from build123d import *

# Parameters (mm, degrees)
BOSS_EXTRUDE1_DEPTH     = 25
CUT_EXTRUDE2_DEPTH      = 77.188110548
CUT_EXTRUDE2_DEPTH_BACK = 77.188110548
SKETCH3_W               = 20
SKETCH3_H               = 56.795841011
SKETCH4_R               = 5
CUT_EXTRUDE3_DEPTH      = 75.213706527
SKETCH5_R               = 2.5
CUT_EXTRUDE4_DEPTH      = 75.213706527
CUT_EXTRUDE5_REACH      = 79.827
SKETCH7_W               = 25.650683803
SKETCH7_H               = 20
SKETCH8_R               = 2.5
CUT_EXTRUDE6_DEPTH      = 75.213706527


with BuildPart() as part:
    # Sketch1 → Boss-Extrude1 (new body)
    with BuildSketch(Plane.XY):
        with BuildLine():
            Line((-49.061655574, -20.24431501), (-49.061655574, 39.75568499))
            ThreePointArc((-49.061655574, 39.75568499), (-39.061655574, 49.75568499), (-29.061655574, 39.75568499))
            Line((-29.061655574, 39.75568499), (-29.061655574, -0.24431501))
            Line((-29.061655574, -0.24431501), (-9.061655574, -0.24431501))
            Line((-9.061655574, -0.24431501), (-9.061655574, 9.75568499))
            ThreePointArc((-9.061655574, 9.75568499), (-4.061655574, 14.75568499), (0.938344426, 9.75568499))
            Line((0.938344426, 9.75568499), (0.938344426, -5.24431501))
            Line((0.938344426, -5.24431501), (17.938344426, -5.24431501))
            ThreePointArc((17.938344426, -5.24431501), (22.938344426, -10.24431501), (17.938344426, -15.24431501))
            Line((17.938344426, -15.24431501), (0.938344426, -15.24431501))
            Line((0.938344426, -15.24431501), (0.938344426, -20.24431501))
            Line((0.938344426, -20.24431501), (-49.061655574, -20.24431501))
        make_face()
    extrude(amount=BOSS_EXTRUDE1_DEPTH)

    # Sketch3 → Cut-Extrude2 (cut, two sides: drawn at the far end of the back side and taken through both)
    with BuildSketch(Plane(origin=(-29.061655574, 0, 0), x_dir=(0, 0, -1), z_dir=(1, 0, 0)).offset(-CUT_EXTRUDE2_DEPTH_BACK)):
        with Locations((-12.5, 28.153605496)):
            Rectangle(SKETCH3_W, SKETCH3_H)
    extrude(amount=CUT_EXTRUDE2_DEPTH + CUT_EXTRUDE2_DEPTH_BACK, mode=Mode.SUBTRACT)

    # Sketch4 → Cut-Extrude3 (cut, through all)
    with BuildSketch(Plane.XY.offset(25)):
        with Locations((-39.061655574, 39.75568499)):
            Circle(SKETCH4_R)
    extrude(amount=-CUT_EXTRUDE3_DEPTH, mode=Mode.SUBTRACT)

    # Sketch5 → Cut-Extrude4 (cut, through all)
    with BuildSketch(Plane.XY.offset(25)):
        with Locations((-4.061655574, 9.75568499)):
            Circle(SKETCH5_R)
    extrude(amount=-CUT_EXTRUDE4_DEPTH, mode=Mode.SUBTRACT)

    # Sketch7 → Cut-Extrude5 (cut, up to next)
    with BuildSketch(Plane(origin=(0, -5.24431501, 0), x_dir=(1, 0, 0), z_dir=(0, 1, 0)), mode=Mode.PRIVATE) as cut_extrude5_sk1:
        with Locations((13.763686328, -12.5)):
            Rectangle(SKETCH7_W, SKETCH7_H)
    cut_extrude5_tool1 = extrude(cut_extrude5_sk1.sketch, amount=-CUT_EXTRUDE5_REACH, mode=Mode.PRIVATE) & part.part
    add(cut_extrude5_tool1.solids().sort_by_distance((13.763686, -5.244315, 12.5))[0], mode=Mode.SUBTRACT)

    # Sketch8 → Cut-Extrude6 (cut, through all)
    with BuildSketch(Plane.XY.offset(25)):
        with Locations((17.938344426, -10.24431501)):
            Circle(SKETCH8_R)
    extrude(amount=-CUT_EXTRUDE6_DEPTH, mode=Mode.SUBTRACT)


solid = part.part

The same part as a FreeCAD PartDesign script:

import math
import FreeCAD as App
import Part
import Sketcher

V = App.Vector
Q = App.Units.Quantity


def add_polygon(sketch, points):
    """Adds a closed chain of lines whose ends are joined by coincident constraints."""
    first, n = sketch.GeometryCount, len(points)
    for a, b in zip(points, points[1:] + points[:1]):
        sketch.addGeometry(Part.LineSegment(App.Vector(*a, 0), App.Vector(*b, 0)), False)
    for i in range(n):
        sketch.addConstraint(Sketcher.Constraint("Coincident", first + i, 2, first + (i + 1) % n, 1))

doc = App.newDocument("Part")
body = doc.addObject("PartDesign::Body", "Body")

# Sketch on XY plane
sketch1 = doc.addObject("Sketcher::SketchObject", "Sketch")
body.addObject(sketch1)
sketch1.AttachmentSupport = (doc.XY_Plane, [""])
sketch1.MapMode = "FlatFace"
sketch1.addGeometry(Part.LineSegment(V(-49, 40, 0), V(-49, -20, 0)), False)
sketch1.addGeometry(Part.LineSegment(V(-49, -20, 0), V(1, -20, 0)), False)
sketch1.addGeometry(Part.LineSegment(V(1, -20, 0), V(1, -15, 0)), False)
sketch1.addGeometry(Part.LineSegment(V(1, -15, 0), V(18, -15, 0)), False)
sketch1.addGeometry(Part.ArcOfCircle(Part.Circle(V(18, -10, 0), V(0, 0, 1), 5), math.radians(-90), math.radians(90)), False)
sketch1.addGeometry(Part.LineSegment(V(18, -5, 0), V(1, -5, 0)), False)
sketch1.addGeometry(Part.LineSegment(V(1, -5, 0), V(1, 10, 0)), False)
sketch1.addGeometry(Part.ArcOfCircle(Part.Circle(V(-4, 10, 0), V(0, 0, 1), 5), math.radians(0), math.radians(180)), False)
sketch1.addGeometry(Part.LineSegment(V(-9, 10, 0), V(-9, 0, 0)), False)
sketch1.addGeometry(Part.LineSegment(V(-9, 0, 0), V(-29, 0, 0)), False)
sketch1.addGeometry(Part.LineSegment(V(-29, 0, 0), V(-29, 40, 0)), False)
sketch1.addGeometry(Part.ArcOfCircle(Part.Circle(V(-39, 40, 0), V(0, 0, 1), 10), math.radians(0), math.radians(180)), False)
sketch1.addConstraint(Sketcher.Constraint("Coincident", 0, 2, 1, 1))
sketch1.addConstraint(Sketcher.Constraint("Coincident", 1, 2, 2, 1))
sketch1.addConstraint(Sketcher.Constraint("Coincident", 2, 2, 3, 1))
sketch1.addConstraint(Sketcher.Constraint("Tangent", 3, 2, 4, 1))
sketch1.addConstraint(Sketcher.Constraint("Tangent", 4, 2, 5, 1))
sketch1.addConstraint(Sketcher.Constraint("Coincident", 5, 2, 6, 1))
sketch1.addConstraint(Sketcher.Constraint("Tangent", 6, 2, 7, 1))
sketch1.addConstraint(Sketcher.Constraint("Tangent", 7, 2, 8, 1))
sketch1.addConstraint(Sketcher.Constraint("Coincident", 8, 2, 9, 1))
sketch1.addConstraint(Sketcher.Constraint("Coincident", 9, 2, 10, 1))
sketch1.addConstraint(Sketcher.Constraint("Tangent", 10, 2, 11, 1))
sketch1.addConstraint(Sketcher.Constraint("Tangent", 11, 2, 0, 1))
sketch1.addConstraint(Sketcher.Constraint("Vertical", 0))
sketch1.addConstraint(Sketcher.Constraint("Horizontal", 1))
sketch1.addConstraint(Sketcher.Constraint("Vertical", 2))
sketch1.addConstraint(Sketcher.Constraint("Horizontal", 3))
sketch1.addConstraint(Sketcher.Constraint("Horizontal", 5))
sketch1.addConstraint(Sketcher.Constraint("Vertical", 6))
sketch1.addConstraint(Sketcher.Constraint("Vertical", 8))
sketch1.addConstraint(Sketcher.Constraint("Horizontal", 9))
sketch1.addConstraint(Sketcher.Constraint("Vertical", 10))
sketch1.addConstraint(Sketcher.Constraint("Equal", 4, 7))
sketch1.addConstraint(Sketcher.Constraint("Vertical", 2, 2, 5, 2))
sketch1.addConstraint(Sketcher.Constraint("Radius", 4, Q("5 mm")))
sketch1.addConstraint(Sketcher.Constraint("Radius", 11, Q("10 mm")))
sketch1.addConstraint(Sketcher.Constraint("DistanceX", 1, 1, 1, 2, Q("50 mm")))
sketch1.addConstraint(Sketcher.Constraint("DistanceX", 3, 1, 3, 2, Q("17 mm")))
sketch1.addConstraint(Sketcher.Constraint("DistanceY", 0, 2, 0, 1, Q("60 mm")))
sketch1.addConstraint(Sketcher.Constraint("DistanceY", 2, 1, 2, 2, Q("5 mm")))
sketch1.addConstraint(Sketcher.Constraint("DistanceY", 6, 1, 6, 2, Q("15 mm")))
sketch1.addConstraint(Sketcher.Constraint("DistanceY", 8, 2, 8, 1, Q("10 mm")))
sketch1.addConstraint(Sketcher.Constraint("DistanceX", -1, 1, 4, 3, Q("17.938344 mm")))
sketch1.addConstraint(Sketcher.Constraint("DistanceY", 4, 3, -1, 1, Q("10.244315 mm")))
pad1 = doc.addObject("PartDesign::Pad", "Pad")
body.addObject(pad1)
pad1.Profile = sketch1
pad1.Length = 25

# Sketch on YZ plane
sketch2 = doc.addObject("Sketcher::SketchObject", "Sketch001")
body.addObject(sketch2)
sketch2.AttachmentSupport = (doc.YZ_Plane, [""])
sketch2.MapMode = "FlatFace"
sketch2.AttachmentOffset = App.Placement(V(0, 0, -29.061656), App.Rotation())
add_polygon(sketch2, [(57, 22), (0, 22), (0, 2), (57, 2)])  # lines 0-3
sketch2.addConstraint(Sketcher.Constraint("Horizontal", 0))
sketch2.addConstraint(Sketcher.Constraint("Vertical", 1))
sketch2.addConstraint(Sketcher.Constraint("Horizontal", 2))
sketch2.addConstraint(Sketcher.Constraint("Vertical", 3))
sketch2.addConstraint(Sketcher.Constraint("DistanceY", 1, 2, 1, 1, Q("20 mm")))
sketch2.addConstraint(Sketcher.Constraint("DistanceY", -1, 1, 0, 2, Q("22.5 mm")))
sketch2.addConstraint(Sketcher.Constraint("DistanceX", 0, 2, 0, 1, Q("56.795841 mm")))
sketch2.addConstraint(Sketcher.Constraint("DistanceX", 0, 2, -1, 1, Q("0.244315 mm")))
pocket1 = doc.addObject("PartDesign::Pocket", "Pocket")
body.addObject(pocket1)
pocket1.Profile = sketch2
pocket1.Type = "ThroughAll"
pocket1.Midplane = True

# Sketch on XY plane
sketch3 = doc.addObject("Sketcher::SketchObject", "Sketch002")
body.addObject(sketch3)
sketch3.AttachmentSupport = (doc.XY_Plane, [""])
sketch3.MapMode = "FlatFace"
sketch3.AttachmentOffset = App.Placement(V(0, 0, 25), App.Rotation())
sketch3.addGeometry(Part.Circle(V(-39, 40, 0), V(0, 0, 1), 5), False)
sketch3.addConstraint(Sketcher.Constraint("Diameter", 0, Q("10 mm")))
sketch3.addConstraint(Sketcher.Constraint("DistanceX", 0, 3, -1, 1, Q("39.061656 mm")))
sketch3.addConstraint(Sketcher.Constraint("DistanceY", -1, 1, 0, 3, Q("39.755685 mm")))
pocket2 = doc.addObject("PartDesign::Pocket", "Pocket001")
body.addObject(pocket2)
pocket2.Profile = sketch3
pocket2.Type = "ThroughAll"

# Sketch on XY plane
sketch4 = doc.addObject("Sketcher::SketchObject", "Sketch003")
body.addObject(sketch4)
sketch4.AttachmentSupport = (doc.XY_Plane, [""])
sketch4.MapMode = "FlatFace"
sketch4.AttachmentOffset = App.Placement(V(0, 0, 25), App.Rotation())
sketch4.addGeometry(Part.Circle(V(-4.1, 9.8, 0), V(0, 0, 1), 2.5), False)
sketch4.addConstraint(Sketcher.Constraint("Diameter", 0, Q("5 mm")))
sketch4.addConstraint(Sketcher.Constraint("DistanceX", 0, 3, -1, 1, Q("4.061656 mm")))
sketch4.addConstraint(Sketcher.Constraint("DistanceY", -1, 1, 0, 3, Q("9.755685 mm")))
pocket3 = doc.addObject("PartDesign::Pocket", "Pocket002")
body.addObject(pocket3)
pocket3.Profile = sketch4
pocket3.Type = "ThroughAll"

# Sketch on XZ plane
sketch5 = doc.addObject("Sketcher::SketchObject", "Sketch004")
body.addObject(sketch5)
sketch5.AttachmentSupport = (doc.XZ_Plane, [""])
sketch5.MapMode = "FlatFace"
sketch5.AttachmentOffset = App.Placement(V(0, 0, 5.244315), App.Rotation())
add_polygon(sketch5, [(1, 2), (1, 22), (27, 22), (27, 2)])  # lines 0-3
sketch5.addConstraint(Sketcher.Constraint("Vertical", 0))
sketch5.addConstraint(Sketcher.Constraint("Horizontal", 1))
sketch5.addConstraint(Sketcher.Constraint("Vertical", 2))
sketch5.addConstraint(Sketcher.Constraint("Horizontal", 3))
sketch5.addConstraint(Sketcher.Constraint("DistanceY", 0, 1, 0, 2, Q("20 mm")))
sketch5.addConstraint(Sketcher.Constraint("DistanceY", -1, 1, 0, 2, Q("22.5 mm")))
sketch5.addConstraint(Sketcher.Constraint("DistanceX", 1, 1, 1, 2, Q("25.650684 mm")))
sketch5.addConstraint(Sketcher.Constraint("DistanceX", -1, 1, 1, 2, Q("26.589028 mm")))
pocket4 = doc.addObject("PartDesign::Pocket", "Pocket003")
body.addObject(pocket4)
pocket4.Profile = sketch5
pocket4.Type = "UpToFirst"
pocket4.Reversed = True

# Sketch on XY plane
sketch6 = doc.addObject("Sketcher::SketchObject", "Sketch005")
body.addObject(sketch6)
sketch6.AttachmentSupport = (doc.XY_Plane, [""])
sketch6.MapMode = "FlatFace"
sketch6.AttachmentOffset = App.Placement(V(0, 0, 25), App.Rotation())
sketch6.addGeometry(Part.Circle(V(17.9, -10.2, 0), V(0, 0, 1), 2.5), False)
sketch6.addConstraint(Sketcher.Constraint("Diameter", 0, Q("5 mm")))
sketch6.addConstraint(Sketcher.Constraint("DistanceX", -1, 1, 0, 3, Q("17.938344 mm")))
sketch6.addConstraint(Sketcher.Constraint("DistanceY", 0, 3, -1, 1, Q("10.244315 mm")))
pocket5 = doc.addObject("PartDesign::Pocket", "Pocket004")
body.addObject(pocket5)
pocket5.Profile = sketch6
pocket5.Type = "ThroughAll"

doc.recompute()
